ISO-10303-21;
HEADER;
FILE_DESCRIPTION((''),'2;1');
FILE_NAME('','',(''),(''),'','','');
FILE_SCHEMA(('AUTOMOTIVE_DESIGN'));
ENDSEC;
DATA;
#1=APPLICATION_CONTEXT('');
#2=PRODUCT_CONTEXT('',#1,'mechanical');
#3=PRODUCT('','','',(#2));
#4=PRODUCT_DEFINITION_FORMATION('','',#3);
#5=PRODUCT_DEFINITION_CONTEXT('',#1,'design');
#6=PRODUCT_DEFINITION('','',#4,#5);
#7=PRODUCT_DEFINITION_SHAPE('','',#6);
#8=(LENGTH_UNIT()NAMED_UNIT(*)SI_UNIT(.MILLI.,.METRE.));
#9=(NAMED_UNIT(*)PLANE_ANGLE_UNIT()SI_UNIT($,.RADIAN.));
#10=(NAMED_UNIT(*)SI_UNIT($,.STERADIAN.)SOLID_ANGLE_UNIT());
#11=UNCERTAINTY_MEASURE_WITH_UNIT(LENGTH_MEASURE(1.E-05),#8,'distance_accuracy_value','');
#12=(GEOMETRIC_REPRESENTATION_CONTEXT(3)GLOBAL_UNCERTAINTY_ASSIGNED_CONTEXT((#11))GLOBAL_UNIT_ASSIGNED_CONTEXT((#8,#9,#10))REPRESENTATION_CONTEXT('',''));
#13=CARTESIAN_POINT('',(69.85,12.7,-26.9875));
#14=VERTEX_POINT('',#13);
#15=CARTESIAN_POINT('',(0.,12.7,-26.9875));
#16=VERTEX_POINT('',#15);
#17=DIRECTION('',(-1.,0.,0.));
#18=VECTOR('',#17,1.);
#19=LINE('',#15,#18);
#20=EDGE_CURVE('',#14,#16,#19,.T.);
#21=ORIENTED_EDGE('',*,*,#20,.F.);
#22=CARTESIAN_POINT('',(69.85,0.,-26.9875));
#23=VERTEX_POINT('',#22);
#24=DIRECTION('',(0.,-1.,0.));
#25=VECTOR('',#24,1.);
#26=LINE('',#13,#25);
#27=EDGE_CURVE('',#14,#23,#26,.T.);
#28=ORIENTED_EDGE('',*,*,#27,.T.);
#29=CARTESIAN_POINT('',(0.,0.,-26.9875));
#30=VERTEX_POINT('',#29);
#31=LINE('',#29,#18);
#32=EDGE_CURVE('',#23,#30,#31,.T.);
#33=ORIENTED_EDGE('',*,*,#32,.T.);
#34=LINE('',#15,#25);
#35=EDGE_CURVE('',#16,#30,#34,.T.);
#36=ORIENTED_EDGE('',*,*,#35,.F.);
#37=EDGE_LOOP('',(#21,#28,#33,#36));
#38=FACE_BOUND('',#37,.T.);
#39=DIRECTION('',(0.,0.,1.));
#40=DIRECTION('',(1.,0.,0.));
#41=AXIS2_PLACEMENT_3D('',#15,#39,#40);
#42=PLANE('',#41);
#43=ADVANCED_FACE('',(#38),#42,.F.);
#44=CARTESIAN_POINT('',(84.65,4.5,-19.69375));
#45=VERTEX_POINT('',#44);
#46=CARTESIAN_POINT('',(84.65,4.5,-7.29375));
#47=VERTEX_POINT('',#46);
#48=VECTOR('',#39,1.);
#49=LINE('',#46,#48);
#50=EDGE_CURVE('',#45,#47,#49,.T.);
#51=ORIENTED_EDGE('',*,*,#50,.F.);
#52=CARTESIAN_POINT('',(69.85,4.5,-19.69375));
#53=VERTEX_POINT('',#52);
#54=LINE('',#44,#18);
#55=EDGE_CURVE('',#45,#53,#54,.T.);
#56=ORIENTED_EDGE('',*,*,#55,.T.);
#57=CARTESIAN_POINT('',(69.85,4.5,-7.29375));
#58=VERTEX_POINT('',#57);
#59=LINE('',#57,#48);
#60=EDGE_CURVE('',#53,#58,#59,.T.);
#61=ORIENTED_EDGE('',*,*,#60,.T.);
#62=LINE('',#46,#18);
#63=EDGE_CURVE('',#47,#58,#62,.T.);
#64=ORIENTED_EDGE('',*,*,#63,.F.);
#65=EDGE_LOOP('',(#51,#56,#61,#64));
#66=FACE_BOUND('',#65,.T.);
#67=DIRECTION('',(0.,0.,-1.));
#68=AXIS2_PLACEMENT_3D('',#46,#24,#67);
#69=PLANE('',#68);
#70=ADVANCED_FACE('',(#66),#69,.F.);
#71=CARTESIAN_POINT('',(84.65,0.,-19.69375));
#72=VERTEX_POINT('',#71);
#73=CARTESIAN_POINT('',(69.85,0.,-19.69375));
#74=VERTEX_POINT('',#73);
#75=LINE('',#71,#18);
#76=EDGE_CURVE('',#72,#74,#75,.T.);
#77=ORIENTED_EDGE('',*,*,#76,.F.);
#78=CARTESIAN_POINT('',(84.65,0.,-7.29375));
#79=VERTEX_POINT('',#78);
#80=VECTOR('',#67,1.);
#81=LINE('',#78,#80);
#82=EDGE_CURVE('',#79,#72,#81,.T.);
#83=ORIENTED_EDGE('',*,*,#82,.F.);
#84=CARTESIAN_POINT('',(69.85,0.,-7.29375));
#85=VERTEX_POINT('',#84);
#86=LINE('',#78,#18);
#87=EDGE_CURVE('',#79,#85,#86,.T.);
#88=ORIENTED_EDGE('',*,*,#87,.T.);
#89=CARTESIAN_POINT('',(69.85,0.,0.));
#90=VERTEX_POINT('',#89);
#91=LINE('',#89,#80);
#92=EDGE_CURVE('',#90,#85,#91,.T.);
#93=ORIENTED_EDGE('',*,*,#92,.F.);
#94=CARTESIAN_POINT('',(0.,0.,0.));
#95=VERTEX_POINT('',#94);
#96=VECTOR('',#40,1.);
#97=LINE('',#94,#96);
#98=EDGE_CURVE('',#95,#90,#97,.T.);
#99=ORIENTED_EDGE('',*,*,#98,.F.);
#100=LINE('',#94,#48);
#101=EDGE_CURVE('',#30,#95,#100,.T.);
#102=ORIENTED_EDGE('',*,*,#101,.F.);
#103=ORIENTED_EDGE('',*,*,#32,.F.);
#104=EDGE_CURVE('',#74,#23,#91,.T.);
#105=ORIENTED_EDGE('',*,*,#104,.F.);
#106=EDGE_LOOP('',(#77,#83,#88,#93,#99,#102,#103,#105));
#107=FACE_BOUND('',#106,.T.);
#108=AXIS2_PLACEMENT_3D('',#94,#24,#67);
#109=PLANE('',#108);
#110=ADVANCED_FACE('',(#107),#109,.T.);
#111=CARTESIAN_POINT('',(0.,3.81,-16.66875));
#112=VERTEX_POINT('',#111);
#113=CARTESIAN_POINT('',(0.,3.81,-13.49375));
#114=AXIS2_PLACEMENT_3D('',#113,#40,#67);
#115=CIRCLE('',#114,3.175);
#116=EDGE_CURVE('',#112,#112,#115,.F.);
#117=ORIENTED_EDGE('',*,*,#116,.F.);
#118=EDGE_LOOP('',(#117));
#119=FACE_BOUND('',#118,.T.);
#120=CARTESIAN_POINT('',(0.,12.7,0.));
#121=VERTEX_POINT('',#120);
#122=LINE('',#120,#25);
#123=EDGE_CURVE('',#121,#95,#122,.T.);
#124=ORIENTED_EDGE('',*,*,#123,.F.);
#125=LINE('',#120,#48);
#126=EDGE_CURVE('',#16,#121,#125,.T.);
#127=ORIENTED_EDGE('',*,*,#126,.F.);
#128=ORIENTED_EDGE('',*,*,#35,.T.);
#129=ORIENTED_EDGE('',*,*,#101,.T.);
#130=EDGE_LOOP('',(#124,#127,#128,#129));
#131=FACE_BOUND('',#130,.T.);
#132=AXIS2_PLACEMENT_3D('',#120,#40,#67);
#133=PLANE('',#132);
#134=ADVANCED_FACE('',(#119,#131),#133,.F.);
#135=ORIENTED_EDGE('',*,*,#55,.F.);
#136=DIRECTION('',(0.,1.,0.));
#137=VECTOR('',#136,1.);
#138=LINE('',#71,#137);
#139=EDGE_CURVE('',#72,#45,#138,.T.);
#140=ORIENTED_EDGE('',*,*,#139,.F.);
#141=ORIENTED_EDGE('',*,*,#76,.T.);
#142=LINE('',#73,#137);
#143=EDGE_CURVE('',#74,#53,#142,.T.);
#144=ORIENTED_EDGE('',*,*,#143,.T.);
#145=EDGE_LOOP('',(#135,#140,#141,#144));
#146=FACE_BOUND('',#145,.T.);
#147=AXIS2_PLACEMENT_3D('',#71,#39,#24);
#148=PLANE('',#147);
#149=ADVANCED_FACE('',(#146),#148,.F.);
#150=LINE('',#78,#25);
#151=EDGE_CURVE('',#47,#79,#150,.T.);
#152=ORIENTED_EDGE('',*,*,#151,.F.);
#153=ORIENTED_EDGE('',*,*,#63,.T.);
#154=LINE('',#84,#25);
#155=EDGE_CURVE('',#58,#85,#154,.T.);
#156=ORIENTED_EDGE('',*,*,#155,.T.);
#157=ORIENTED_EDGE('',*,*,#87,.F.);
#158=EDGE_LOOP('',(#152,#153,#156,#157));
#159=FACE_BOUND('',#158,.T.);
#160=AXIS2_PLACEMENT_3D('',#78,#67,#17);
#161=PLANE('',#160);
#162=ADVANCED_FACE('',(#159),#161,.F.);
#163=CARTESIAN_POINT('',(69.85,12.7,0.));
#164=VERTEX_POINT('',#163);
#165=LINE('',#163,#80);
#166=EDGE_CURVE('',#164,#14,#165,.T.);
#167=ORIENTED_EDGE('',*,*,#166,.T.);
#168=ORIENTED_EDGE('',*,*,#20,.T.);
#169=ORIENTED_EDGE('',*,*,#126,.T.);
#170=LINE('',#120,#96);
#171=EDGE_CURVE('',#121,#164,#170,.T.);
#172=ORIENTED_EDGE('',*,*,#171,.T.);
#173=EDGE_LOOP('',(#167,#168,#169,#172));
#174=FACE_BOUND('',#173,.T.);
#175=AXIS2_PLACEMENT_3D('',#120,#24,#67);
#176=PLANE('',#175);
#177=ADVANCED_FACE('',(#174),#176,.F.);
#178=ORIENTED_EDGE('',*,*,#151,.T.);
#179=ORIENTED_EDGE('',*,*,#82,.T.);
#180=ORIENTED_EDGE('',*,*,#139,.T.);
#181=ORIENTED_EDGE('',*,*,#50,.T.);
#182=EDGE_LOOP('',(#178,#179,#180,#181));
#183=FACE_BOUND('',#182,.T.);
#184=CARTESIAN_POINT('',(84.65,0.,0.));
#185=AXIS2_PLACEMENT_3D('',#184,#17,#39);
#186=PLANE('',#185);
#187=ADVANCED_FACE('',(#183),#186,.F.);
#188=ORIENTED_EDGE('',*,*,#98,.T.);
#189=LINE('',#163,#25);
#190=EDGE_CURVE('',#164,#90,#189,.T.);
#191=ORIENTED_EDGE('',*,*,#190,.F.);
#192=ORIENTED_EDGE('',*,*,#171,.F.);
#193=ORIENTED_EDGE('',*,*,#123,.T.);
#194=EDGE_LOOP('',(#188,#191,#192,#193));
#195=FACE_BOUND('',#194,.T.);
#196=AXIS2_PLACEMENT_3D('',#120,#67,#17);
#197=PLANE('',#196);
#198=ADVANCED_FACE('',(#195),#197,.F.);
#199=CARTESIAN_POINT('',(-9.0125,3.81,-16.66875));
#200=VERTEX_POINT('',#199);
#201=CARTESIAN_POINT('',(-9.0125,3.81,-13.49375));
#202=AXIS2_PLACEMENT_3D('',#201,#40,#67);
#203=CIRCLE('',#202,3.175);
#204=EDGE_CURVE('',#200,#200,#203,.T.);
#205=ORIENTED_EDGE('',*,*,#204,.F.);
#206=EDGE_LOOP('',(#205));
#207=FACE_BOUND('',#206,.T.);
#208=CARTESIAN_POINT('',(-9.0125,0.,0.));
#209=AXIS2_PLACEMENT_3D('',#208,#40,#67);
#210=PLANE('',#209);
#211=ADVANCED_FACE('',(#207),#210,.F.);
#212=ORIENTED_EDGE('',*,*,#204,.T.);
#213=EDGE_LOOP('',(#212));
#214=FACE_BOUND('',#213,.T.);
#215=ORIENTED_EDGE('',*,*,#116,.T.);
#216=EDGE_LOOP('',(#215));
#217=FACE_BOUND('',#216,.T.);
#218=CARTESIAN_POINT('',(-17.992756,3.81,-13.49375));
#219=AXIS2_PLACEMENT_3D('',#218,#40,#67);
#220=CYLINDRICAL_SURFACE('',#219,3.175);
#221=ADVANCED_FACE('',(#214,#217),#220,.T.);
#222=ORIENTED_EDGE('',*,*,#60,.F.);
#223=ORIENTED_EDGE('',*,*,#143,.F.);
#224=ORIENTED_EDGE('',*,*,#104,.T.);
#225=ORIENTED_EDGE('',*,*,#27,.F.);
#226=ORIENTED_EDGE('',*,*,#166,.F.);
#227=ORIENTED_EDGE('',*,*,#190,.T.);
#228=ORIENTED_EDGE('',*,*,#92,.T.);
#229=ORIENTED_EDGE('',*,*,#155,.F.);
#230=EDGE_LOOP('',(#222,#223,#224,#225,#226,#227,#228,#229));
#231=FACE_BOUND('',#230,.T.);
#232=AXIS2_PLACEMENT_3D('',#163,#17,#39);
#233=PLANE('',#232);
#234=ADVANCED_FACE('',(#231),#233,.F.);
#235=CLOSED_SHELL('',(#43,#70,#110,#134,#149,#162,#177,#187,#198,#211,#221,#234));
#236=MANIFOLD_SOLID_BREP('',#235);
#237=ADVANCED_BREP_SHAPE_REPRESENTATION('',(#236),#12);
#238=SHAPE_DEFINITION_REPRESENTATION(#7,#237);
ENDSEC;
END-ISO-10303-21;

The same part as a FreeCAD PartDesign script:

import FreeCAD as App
import Part
import Sketcher
Q = App.Units.Quantity


def add_polygon(sketch, points):
    """Adds a closed chain of lines whose ends are joined by coincident constraints."""
    first, n = sketch.GeometryCount, len(points)
    for a, b in zip(points, points[1:] + points[:1]):
        sketch.addGeometry(Part.LineSegment(App.Vector(*a, 0), App.Vector(*b, 0)), False)
    for i in range(n):
        sketch.addConstraint(Sketcher.Constraint("Coincident", first + i, 2, first + (i + 1) % n, 1))

doc = App.newDocument("Part")
body = doc.addObject("PartDesign::Body", "Body")

# Sketch on XZ plane
sketch1 = body.newObject("Sketcher::SketchObject", "Sketch")
sketch1.AttachmentSupport = (doc.getObject("XZ_Plane"), [""])
sketch1.MapMode = "FlatFace"
add_polygon(sketch1, [(0, -26.9875), (0, 0), (69.85, 0), (69.85, -26.9875)])  # lines 0-3
sketch1.addConstraint(Sketcher.Constraint("Vertical", 0))
sketch1.addConstraint(Sketcher.Constraint("Horizontal", 1))
sketch1.addConstraint(Sketcher.Constraint("Vertical", 2))
sketch1.addConstraint(Sketcher.Constraint("Horizontal", 3))
sketch1.addConstraint(Sketcher.Constraint("Coincident", 0, 2, -1, 1))
sketch1.addConstraint(Sketcher.Constraint("DistanceX", 1, 1, 1, 2, Q("2.75 in")))
sketch1.addConstraint(Sketcher.Constraint("DistanceY", 0, 1, 0, 2, Q("1.0625 in")))
pad1 = body.newObject("PartDesign::Pad", "Pad")
pad1.Profile = sketch1
pad1.Length = Q("0.5 in")
pad1.Reversed = True

# Sketch on YZ plane
sketch2 = body.newObject("Sketcher::SketchObject", "Sketch001")
sketch2.AttachmentSupport = (doc.getObject("YZ_Plane"), [""])
sketch2.MapMode = "FlatFace"
sketch2.AttachmentOffset = App.Placement(App.Vector(0, 0, 2.75 * 25.4), App.Rotation())
add_polygon(sketch2, [(4.5, -7.29375), (0, -7.29375), (0, -19.69375), (4.5, -19.69375)])  # lines 0-3
sketch2.addConstraint(Sketcher.Constraint("Horizontal", 0))
sketch2.addConstraint(Sketcher.Constraint("Vertical", 1))
sketch2.addConstraint(Sketcher.Constraint("Horizontal", 2))
sketch2.addConstraint(Sketcher.Constraint("Vertical", 3))
sketch2.addConstraint(Sketcher.Constraint("PointOnObject", 0, 2, -2))
sketch2.addConstraint(Sketcher.Constraint("DistanceX", 0, 2, 0, 1, Q("4.5 mm")))
sketch2.addConstraint(Sketcher.Constraint("DistanceY", 1, 2, 1, 1, Q("12.4 mm")))
sketch2.addConstraint(Sketcher.Constraint("DistanceY", 0, 2, -1, 1, Q("7.29375 mm")))
pad2 = body.newObject("PartDesign::Pad", "Pad001")
pad2.Profile = sketch2
pad2.Length = 14.8

# Sketch on YZ plane
sketch3 = body.newObject("Sketcher::SketchObject", "Sketch002")
sketch3.AttachmentSupport = (doc.getObject("YZ_Plane"), [""])
sketch3.MapMode = "FlatFace"
sketch3.addGeometry(Part.Circle(App.Vector(3.81, -13.49375, 0), App.Vector(0, 0, 1), 3.175), False)
sketch3.addConstraint(Sketcher.Constraint("Diameter", 0, Q("0.25 in")))
sketch3.addConstraint(Sketcher.Constraint("DistanceX", -1, 1, 0, 3, Q("0.15 in")))
sketch3.addConstraint(Sketcher.Constraint("DistanceY", 0, 3, -1, 1, Q("0.53125 in")))
pad3 = body.newObject("PartDesign::Pad", "Pad002")
pad3.Profile = sketch3
pad3.Length = 9.0125
pad3.Reversed = True

doc.recompute()
